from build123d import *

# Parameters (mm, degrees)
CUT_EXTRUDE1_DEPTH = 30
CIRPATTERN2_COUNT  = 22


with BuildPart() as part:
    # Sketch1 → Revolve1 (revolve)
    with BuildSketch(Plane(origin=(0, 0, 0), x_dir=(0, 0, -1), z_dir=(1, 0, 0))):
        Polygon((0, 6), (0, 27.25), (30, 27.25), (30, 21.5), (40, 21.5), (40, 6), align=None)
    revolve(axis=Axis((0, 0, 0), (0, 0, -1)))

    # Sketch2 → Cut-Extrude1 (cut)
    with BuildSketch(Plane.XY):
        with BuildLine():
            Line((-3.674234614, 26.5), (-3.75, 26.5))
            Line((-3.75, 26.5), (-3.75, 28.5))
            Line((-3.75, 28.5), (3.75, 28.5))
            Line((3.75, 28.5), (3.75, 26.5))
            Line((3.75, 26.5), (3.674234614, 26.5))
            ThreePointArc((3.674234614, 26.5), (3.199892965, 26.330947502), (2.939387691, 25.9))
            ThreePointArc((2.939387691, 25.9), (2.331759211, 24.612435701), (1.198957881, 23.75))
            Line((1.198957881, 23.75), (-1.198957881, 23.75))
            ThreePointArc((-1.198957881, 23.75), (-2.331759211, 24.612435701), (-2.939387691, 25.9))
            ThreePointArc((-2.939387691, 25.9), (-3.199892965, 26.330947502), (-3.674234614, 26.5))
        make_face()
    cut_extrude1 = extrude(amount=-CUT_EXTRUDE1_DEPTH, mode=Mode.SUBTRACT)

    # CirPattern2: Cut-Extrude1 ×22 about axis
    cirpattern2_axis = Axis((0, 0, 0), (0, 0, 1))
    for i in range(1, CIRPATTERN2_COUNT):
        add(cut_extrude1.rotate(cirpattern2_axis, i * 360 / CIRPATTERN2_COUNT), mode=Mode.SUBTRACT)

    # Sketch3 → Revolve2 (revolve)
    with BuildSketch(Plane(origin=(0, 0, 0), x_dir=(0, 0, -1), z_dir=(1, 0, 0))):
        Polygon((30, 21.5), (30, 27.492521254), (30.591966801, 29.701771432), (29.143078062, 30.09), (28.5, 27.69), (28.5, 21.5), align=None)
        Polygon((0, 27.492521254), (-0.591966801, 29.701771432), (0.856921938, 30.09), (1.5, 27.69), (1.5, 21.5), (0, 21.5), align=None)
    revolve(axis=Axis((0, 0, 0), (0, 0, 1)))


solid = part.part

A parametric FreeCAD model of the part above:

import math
import FreeCAD as App
import Part
import Sketcher
from FreeCAD import Vector
Q = App.Units.Quantity


def add_polygon(sketch, points):
    """Adds a closed chain of lines whose ends are joined by coincident constraints."""
    first, n = sketch.GeometryCount, len(points)
    for a, b in zip(points, points[1:] + points[:1]):
        sketch.addGeometry(Part.LineSegment(App.Vector(*a, 0), App.Vector(*b, 0)), False)
    for i in range(n):
        sketch.addConstraint(Sketcher.Constraint("Coincident", first + i, 2, first + (i + 1) % n, 1))

doc = App.newDocument("Part")
body = doc.addObject("PartDesign::Body", "Body")

sketch1 = body.newObject("Sketcher::SketchObject", "Sketch")
sketch1.AttachmentSupport = (doc.getObject("YZ_Plane"), [""])
sketch1.MapMode = "FlatFace"
add_polygon(sketch1, [(27.25, 0), (6, 0), (6, -40), (21.5, -40), (21.5, -30), (27.25, -30)])
sketch1.addConstraint([
    Sketcher.Constraint("Horizontal", 0),
    Sketcher.Constraint("Vertical", 1),
    Sketcher.Constraint("Horizontal", 2),
    Sketcher.Constraint("Vertical", 3),
    Sketcher.Constraint("Horizontal", 4),
    Sketcher.Constraint("Vertical", 5),
    Sketcher.Constraint("PointOnObject", 0, 2, -1),
    Sketcher.Constraint("DistanceY", 1, 2, 1, 1, Q("40 mm")),
    Sketcher.Constraint("DistanceY", 3, 1, 3, 2, Q("10 mm")),
    Sketcher.Constraint("DistanceX", 2, 1, 2, 2, Q("15.5 mm")),
    Sketcher.Constraint("DistanceX", -1, 1, 0, 2, Q("6 mm")),
    Sketcher.Constraint("DistanceX", 0, 2, 0, 1, Q("21.25 mm")),
])
revolution = body.newObject("PartDesign::Revolution", "Revolution")
revolution.Profile = sketch1
revolution.ReferenceAxis = (sketch1, ["V_Axis"])
revolution.Angle = 360

sketch2 = body.newObject("Sketcher::SketchObject", "Sketch001")
sketch2.AttachmentSupport = (doc.getObject("XY_Plane"), [""])
sketch2.MapMode = "FlatFace"
sketch2.addGeometry([
    Part.LineSegment(Vector(-3.75, 26.5, 0), Vector(-3.674235, 26.5, 0)),
    Part.ArcOfCircle(Part.Circle(Vector(-3.674235, 25.75, 0), Vector(0, 0, 1), 0.75), math.radians(11.536959), math.radians(90)),
    Part.ArcOfCircle(Part.Circle(Vector(0, 26.5, 0), Vector(0, 0, 1), 3), math.radians(-168.463041), math.radians(-113.556464)),
    Part.LineSegment(Vector(-1.198958, 23.75, 0), Vector(1.198958, 23.75, 0)),
    Part.ArcOfCircle(Part.Circle(Vector(0, 26.5, 0), Vector(0, 0, 1), 3), math.radians(-66.443536), math.radians(-11.536959)),
    Part.ArcOfCircle(Part.Circle(Vector(3.674235, 25.75, 0), Vector(0, 0, 1), 0.75), math.radians(90), math.radians(168.463041)),
    Part.LineSegment(Vector(3.674235, 26.5, 0), Vector(3.75, 26.5, 0)),
    Part.LineSegment(Vector(3.75, 26.5, 0), Vector(3.75, 28.5, 0)),
    Part.LineSegment(Vector(3.75, 28.5, 0), Vector(-3.75, 28.5, 0)),
    Part.LineSegment(Vector(-3.75, 28.5, 0), Vector(-3.75, 26.5, 0)),
], False)
sketch2.addConstraint([
    Sketcher.Constraint("Tangent", 0, 2, 1, 2),
    Sketcher.Constraint("Tangent", 1, 1, 2, 1),
    Sketcher.Constraint("Coincident", 2, 2, 3, 1),
    Sketcher.Constraint("Coincident", 3, 2, 4, 1),
    Sketcher.Constraint("Tangent", 4, 2, 5, 2),
    Sketcher.Constraint("Tangent", 5, 1, 6, 1),
    Sketcher.Constraint("Coincident", 6, 2, 7, 1),
    Sketcher.Constraint("Coincident", 7, 2, 8, 1),
    Sketcher.Constraint("Coincident", 8, 2, 9, 1),
    Sketcher.Constraint("Coincident", 9, 2, 0, 1),
    Sketcher.Constraint("Horizontal", 0),
    Sketcher.Constraint("Horizontal", 3),
    Sketcher.Constraint("Horizontal", 6),
    Sketcher.Constraint("Vertical", 7),
    Sketcher.Constraint("Horizontal", 8),
    Sketcher.Constraint("Vertical", 9),
    Sketcher.Constraint("Coincident", 4, 3, 2, 3),
    Sketcher.Constraint("Equal", 2, 4),
    Sketcher.Constraint("Equal", 1, 5),
    Sketcher.Constraint("Symmetric", 1, 3, 5, 3, -2),
    Sketcher.Constraint("Horizontal", 4, 3, 0, 2),
    Sketcher.Constraint("Equal", 0, 6),
    Sketcher.Constraint("Radius", 2, Q("3 mm")),
    Sketcher.Constraint("DistanceY", 7, 1, 7, 2, Q("2 mm")),
    Sketcher.Constraint("Radius", 1, Q("0.75 mm")),
    Sketcher.Constraint("DistanceX", 8, 2, 8, 1, Q("7.5 mm")),
    Sketcher.Constraint("DistanceY", 2, 2, 1, 3, Q("2 mm")),
    Sketcher.Constraint("DistanceY", -1, 1, 2, 3, Q("26.5 mm")),
])
pocket1 = body.newObject("PartDesign::Pocket", "Pocket")
pocket1.Profile = sketch2
pocket1.Length = 30
doc.recompute()

polarpattern = body.newObject("PartDesign::PolarPattern", "PolarPattern")
polarpattern.Originals = [pocket1]
polarpattern.Axis = (doc.getObject("Z_Axis"), [""])
polarpattern.Angle = 360
polarpattern.Occurrences = 22
body.Tip = polarpattern

sketch3 = body.newObject("Sketcher::SketchObject", "Sketch002")
sketch3.AttachmentSupport = (doc.getObject("YZ_Plane"), [""])
sketch3.MapMode = "FlatFace"
add_polygon(sketch3, [(21.5, -30), (27.492521, -30), (29.701771, -30.591967), (30.09, -29.143078), (27.69, -28.5), (21.5, -28.5)])
add_polygon(sketch3, [(29.701771, 0.591967), (27.492521, 0), (21.5, 0), (21.5, -1.5), (27.69, -1.5), (30.09, -0.856922)])
sketch3.addConstraint([
    Sketcher.Constraint("Horizontal", 0),
    Sketcher.Constraint("Horizontal", 4),
    Sketcher.Constraint("Vertical", 5),
    Sketcher.Constraint("Horizontal", 7),
    Sketcher.Constraint("Vertical", 8),
    Sketcher.Constraint("Horizontal", 9),
    Sketcher.Constraint("PointOnObject", 6, 2, -1),
    Sketcher.Constraint("Perpendicular", 1, 2),
    Sketcher.Constraint("Perpendicular", 2, 3),
    Sketcher.Constraint("Parallel", 6, 10),
    Sketcher.Constraint("Perpendicular", 10, 11),
    Sketcher.Constraint("Vertical", 0, 2, 6, 2),
    Sketcher.Constraint("Vertical", 5, 2, 7, 2),
    Sketcher.Constraint("Vertical", 3, 2, 9, 2),
    Sketcher.Constraint("Vertical", 2, 2, 10, 2),
    Sketcher.Constraint("Vertical", 1, 2, 11, 2),
    Sketcher.Constraint("Equal", 5, 8),
    Sketcher.Constraint("Angle", 1, Q("-15 deg")),
    Sketcher.Constraint("DistanceY", 5, 2, 5, 1, Q("1.5 mm")),
    Sketcher.Constraint("DistanceY", 0, 2, -1, 1, Q("30 mm")),
    Sketcher.Constraint("Distance", 2, Q("1.5 mm")),
    Sketcher.Constraint("DistanceX", 4, 2, 4, 1, Q("6.19 mm")),
    Sketcher.Constraint("DistanceX", -1, 1, 4, 2, Q("21.5 mm")),
    Sketcher.Constraint("DistanceX", 3, 2, 2, 2, Q("2.4 mm")),
])
revolution2 = body.newObject("PartDesign::Revolution", "Revolution001")
revolution2.Profile = sketch3
revolution2.ReferenceAxis = (sketch3, ["V_Axis"])
revolution2.Angle = 360

doc.recompute()
